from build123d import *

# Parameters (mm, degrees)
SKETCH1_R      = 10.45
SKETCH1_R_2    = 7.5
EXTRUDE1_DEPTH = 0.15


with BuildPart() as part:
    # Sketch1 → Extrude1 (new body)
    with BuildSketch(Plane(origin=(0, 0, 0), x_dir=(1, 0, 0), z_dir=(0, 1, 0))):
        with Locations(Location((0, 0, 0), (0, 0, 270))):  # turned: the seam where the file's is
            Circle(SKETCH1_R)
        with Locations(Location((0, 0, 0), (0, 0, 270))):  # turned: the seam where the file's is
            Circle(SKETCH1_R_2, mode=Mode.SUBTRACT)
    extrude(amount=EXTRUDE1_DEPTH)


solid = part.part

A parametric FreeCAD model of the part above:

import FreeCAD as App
import Part
import Sketcher

V = App.Vector
Q = App.Units.Quantity

doc = App.newDocument("Part")
body = doc.addObject("PartDesign::Body", "Body")

# Sketch on XZ plane
sketch1 = doc.addObject("Sketcher::SketchObject", "Sketch")
body.addObject(sketch1)
sketch1.AttachmentSupport = (doc.XZ_Plane, [""])
sketch1.MapMode = "FlatFace"
sketch1.addGeometry([
    Part.Circle(V(0, 0, 0), V(0, 0, 1), 10),
    Part.Circle(V(0, 0, 0), V(0, 0, 1), 8),
], False)
sketch1.addConstraint([
    Sketcher.Constraint("Coincident", 0, 3, -1, 1),
    Sketcher.Constraint("Coincident", 1, 3, -1, 1),
    Sketcher.Constraint("Diameter", 1, Q("15 mm")),
    Sketcher.Constraint("Diameter", 0, Q("20.9 mm")),
])
pad1 = doc.addObject("PartDesign::Pad", "Pad")
body.addObject(pad1)
pad1.Profile = sketch1
pad1.Length = 0.15
pad1.Reversed = True

doc.recompute()
